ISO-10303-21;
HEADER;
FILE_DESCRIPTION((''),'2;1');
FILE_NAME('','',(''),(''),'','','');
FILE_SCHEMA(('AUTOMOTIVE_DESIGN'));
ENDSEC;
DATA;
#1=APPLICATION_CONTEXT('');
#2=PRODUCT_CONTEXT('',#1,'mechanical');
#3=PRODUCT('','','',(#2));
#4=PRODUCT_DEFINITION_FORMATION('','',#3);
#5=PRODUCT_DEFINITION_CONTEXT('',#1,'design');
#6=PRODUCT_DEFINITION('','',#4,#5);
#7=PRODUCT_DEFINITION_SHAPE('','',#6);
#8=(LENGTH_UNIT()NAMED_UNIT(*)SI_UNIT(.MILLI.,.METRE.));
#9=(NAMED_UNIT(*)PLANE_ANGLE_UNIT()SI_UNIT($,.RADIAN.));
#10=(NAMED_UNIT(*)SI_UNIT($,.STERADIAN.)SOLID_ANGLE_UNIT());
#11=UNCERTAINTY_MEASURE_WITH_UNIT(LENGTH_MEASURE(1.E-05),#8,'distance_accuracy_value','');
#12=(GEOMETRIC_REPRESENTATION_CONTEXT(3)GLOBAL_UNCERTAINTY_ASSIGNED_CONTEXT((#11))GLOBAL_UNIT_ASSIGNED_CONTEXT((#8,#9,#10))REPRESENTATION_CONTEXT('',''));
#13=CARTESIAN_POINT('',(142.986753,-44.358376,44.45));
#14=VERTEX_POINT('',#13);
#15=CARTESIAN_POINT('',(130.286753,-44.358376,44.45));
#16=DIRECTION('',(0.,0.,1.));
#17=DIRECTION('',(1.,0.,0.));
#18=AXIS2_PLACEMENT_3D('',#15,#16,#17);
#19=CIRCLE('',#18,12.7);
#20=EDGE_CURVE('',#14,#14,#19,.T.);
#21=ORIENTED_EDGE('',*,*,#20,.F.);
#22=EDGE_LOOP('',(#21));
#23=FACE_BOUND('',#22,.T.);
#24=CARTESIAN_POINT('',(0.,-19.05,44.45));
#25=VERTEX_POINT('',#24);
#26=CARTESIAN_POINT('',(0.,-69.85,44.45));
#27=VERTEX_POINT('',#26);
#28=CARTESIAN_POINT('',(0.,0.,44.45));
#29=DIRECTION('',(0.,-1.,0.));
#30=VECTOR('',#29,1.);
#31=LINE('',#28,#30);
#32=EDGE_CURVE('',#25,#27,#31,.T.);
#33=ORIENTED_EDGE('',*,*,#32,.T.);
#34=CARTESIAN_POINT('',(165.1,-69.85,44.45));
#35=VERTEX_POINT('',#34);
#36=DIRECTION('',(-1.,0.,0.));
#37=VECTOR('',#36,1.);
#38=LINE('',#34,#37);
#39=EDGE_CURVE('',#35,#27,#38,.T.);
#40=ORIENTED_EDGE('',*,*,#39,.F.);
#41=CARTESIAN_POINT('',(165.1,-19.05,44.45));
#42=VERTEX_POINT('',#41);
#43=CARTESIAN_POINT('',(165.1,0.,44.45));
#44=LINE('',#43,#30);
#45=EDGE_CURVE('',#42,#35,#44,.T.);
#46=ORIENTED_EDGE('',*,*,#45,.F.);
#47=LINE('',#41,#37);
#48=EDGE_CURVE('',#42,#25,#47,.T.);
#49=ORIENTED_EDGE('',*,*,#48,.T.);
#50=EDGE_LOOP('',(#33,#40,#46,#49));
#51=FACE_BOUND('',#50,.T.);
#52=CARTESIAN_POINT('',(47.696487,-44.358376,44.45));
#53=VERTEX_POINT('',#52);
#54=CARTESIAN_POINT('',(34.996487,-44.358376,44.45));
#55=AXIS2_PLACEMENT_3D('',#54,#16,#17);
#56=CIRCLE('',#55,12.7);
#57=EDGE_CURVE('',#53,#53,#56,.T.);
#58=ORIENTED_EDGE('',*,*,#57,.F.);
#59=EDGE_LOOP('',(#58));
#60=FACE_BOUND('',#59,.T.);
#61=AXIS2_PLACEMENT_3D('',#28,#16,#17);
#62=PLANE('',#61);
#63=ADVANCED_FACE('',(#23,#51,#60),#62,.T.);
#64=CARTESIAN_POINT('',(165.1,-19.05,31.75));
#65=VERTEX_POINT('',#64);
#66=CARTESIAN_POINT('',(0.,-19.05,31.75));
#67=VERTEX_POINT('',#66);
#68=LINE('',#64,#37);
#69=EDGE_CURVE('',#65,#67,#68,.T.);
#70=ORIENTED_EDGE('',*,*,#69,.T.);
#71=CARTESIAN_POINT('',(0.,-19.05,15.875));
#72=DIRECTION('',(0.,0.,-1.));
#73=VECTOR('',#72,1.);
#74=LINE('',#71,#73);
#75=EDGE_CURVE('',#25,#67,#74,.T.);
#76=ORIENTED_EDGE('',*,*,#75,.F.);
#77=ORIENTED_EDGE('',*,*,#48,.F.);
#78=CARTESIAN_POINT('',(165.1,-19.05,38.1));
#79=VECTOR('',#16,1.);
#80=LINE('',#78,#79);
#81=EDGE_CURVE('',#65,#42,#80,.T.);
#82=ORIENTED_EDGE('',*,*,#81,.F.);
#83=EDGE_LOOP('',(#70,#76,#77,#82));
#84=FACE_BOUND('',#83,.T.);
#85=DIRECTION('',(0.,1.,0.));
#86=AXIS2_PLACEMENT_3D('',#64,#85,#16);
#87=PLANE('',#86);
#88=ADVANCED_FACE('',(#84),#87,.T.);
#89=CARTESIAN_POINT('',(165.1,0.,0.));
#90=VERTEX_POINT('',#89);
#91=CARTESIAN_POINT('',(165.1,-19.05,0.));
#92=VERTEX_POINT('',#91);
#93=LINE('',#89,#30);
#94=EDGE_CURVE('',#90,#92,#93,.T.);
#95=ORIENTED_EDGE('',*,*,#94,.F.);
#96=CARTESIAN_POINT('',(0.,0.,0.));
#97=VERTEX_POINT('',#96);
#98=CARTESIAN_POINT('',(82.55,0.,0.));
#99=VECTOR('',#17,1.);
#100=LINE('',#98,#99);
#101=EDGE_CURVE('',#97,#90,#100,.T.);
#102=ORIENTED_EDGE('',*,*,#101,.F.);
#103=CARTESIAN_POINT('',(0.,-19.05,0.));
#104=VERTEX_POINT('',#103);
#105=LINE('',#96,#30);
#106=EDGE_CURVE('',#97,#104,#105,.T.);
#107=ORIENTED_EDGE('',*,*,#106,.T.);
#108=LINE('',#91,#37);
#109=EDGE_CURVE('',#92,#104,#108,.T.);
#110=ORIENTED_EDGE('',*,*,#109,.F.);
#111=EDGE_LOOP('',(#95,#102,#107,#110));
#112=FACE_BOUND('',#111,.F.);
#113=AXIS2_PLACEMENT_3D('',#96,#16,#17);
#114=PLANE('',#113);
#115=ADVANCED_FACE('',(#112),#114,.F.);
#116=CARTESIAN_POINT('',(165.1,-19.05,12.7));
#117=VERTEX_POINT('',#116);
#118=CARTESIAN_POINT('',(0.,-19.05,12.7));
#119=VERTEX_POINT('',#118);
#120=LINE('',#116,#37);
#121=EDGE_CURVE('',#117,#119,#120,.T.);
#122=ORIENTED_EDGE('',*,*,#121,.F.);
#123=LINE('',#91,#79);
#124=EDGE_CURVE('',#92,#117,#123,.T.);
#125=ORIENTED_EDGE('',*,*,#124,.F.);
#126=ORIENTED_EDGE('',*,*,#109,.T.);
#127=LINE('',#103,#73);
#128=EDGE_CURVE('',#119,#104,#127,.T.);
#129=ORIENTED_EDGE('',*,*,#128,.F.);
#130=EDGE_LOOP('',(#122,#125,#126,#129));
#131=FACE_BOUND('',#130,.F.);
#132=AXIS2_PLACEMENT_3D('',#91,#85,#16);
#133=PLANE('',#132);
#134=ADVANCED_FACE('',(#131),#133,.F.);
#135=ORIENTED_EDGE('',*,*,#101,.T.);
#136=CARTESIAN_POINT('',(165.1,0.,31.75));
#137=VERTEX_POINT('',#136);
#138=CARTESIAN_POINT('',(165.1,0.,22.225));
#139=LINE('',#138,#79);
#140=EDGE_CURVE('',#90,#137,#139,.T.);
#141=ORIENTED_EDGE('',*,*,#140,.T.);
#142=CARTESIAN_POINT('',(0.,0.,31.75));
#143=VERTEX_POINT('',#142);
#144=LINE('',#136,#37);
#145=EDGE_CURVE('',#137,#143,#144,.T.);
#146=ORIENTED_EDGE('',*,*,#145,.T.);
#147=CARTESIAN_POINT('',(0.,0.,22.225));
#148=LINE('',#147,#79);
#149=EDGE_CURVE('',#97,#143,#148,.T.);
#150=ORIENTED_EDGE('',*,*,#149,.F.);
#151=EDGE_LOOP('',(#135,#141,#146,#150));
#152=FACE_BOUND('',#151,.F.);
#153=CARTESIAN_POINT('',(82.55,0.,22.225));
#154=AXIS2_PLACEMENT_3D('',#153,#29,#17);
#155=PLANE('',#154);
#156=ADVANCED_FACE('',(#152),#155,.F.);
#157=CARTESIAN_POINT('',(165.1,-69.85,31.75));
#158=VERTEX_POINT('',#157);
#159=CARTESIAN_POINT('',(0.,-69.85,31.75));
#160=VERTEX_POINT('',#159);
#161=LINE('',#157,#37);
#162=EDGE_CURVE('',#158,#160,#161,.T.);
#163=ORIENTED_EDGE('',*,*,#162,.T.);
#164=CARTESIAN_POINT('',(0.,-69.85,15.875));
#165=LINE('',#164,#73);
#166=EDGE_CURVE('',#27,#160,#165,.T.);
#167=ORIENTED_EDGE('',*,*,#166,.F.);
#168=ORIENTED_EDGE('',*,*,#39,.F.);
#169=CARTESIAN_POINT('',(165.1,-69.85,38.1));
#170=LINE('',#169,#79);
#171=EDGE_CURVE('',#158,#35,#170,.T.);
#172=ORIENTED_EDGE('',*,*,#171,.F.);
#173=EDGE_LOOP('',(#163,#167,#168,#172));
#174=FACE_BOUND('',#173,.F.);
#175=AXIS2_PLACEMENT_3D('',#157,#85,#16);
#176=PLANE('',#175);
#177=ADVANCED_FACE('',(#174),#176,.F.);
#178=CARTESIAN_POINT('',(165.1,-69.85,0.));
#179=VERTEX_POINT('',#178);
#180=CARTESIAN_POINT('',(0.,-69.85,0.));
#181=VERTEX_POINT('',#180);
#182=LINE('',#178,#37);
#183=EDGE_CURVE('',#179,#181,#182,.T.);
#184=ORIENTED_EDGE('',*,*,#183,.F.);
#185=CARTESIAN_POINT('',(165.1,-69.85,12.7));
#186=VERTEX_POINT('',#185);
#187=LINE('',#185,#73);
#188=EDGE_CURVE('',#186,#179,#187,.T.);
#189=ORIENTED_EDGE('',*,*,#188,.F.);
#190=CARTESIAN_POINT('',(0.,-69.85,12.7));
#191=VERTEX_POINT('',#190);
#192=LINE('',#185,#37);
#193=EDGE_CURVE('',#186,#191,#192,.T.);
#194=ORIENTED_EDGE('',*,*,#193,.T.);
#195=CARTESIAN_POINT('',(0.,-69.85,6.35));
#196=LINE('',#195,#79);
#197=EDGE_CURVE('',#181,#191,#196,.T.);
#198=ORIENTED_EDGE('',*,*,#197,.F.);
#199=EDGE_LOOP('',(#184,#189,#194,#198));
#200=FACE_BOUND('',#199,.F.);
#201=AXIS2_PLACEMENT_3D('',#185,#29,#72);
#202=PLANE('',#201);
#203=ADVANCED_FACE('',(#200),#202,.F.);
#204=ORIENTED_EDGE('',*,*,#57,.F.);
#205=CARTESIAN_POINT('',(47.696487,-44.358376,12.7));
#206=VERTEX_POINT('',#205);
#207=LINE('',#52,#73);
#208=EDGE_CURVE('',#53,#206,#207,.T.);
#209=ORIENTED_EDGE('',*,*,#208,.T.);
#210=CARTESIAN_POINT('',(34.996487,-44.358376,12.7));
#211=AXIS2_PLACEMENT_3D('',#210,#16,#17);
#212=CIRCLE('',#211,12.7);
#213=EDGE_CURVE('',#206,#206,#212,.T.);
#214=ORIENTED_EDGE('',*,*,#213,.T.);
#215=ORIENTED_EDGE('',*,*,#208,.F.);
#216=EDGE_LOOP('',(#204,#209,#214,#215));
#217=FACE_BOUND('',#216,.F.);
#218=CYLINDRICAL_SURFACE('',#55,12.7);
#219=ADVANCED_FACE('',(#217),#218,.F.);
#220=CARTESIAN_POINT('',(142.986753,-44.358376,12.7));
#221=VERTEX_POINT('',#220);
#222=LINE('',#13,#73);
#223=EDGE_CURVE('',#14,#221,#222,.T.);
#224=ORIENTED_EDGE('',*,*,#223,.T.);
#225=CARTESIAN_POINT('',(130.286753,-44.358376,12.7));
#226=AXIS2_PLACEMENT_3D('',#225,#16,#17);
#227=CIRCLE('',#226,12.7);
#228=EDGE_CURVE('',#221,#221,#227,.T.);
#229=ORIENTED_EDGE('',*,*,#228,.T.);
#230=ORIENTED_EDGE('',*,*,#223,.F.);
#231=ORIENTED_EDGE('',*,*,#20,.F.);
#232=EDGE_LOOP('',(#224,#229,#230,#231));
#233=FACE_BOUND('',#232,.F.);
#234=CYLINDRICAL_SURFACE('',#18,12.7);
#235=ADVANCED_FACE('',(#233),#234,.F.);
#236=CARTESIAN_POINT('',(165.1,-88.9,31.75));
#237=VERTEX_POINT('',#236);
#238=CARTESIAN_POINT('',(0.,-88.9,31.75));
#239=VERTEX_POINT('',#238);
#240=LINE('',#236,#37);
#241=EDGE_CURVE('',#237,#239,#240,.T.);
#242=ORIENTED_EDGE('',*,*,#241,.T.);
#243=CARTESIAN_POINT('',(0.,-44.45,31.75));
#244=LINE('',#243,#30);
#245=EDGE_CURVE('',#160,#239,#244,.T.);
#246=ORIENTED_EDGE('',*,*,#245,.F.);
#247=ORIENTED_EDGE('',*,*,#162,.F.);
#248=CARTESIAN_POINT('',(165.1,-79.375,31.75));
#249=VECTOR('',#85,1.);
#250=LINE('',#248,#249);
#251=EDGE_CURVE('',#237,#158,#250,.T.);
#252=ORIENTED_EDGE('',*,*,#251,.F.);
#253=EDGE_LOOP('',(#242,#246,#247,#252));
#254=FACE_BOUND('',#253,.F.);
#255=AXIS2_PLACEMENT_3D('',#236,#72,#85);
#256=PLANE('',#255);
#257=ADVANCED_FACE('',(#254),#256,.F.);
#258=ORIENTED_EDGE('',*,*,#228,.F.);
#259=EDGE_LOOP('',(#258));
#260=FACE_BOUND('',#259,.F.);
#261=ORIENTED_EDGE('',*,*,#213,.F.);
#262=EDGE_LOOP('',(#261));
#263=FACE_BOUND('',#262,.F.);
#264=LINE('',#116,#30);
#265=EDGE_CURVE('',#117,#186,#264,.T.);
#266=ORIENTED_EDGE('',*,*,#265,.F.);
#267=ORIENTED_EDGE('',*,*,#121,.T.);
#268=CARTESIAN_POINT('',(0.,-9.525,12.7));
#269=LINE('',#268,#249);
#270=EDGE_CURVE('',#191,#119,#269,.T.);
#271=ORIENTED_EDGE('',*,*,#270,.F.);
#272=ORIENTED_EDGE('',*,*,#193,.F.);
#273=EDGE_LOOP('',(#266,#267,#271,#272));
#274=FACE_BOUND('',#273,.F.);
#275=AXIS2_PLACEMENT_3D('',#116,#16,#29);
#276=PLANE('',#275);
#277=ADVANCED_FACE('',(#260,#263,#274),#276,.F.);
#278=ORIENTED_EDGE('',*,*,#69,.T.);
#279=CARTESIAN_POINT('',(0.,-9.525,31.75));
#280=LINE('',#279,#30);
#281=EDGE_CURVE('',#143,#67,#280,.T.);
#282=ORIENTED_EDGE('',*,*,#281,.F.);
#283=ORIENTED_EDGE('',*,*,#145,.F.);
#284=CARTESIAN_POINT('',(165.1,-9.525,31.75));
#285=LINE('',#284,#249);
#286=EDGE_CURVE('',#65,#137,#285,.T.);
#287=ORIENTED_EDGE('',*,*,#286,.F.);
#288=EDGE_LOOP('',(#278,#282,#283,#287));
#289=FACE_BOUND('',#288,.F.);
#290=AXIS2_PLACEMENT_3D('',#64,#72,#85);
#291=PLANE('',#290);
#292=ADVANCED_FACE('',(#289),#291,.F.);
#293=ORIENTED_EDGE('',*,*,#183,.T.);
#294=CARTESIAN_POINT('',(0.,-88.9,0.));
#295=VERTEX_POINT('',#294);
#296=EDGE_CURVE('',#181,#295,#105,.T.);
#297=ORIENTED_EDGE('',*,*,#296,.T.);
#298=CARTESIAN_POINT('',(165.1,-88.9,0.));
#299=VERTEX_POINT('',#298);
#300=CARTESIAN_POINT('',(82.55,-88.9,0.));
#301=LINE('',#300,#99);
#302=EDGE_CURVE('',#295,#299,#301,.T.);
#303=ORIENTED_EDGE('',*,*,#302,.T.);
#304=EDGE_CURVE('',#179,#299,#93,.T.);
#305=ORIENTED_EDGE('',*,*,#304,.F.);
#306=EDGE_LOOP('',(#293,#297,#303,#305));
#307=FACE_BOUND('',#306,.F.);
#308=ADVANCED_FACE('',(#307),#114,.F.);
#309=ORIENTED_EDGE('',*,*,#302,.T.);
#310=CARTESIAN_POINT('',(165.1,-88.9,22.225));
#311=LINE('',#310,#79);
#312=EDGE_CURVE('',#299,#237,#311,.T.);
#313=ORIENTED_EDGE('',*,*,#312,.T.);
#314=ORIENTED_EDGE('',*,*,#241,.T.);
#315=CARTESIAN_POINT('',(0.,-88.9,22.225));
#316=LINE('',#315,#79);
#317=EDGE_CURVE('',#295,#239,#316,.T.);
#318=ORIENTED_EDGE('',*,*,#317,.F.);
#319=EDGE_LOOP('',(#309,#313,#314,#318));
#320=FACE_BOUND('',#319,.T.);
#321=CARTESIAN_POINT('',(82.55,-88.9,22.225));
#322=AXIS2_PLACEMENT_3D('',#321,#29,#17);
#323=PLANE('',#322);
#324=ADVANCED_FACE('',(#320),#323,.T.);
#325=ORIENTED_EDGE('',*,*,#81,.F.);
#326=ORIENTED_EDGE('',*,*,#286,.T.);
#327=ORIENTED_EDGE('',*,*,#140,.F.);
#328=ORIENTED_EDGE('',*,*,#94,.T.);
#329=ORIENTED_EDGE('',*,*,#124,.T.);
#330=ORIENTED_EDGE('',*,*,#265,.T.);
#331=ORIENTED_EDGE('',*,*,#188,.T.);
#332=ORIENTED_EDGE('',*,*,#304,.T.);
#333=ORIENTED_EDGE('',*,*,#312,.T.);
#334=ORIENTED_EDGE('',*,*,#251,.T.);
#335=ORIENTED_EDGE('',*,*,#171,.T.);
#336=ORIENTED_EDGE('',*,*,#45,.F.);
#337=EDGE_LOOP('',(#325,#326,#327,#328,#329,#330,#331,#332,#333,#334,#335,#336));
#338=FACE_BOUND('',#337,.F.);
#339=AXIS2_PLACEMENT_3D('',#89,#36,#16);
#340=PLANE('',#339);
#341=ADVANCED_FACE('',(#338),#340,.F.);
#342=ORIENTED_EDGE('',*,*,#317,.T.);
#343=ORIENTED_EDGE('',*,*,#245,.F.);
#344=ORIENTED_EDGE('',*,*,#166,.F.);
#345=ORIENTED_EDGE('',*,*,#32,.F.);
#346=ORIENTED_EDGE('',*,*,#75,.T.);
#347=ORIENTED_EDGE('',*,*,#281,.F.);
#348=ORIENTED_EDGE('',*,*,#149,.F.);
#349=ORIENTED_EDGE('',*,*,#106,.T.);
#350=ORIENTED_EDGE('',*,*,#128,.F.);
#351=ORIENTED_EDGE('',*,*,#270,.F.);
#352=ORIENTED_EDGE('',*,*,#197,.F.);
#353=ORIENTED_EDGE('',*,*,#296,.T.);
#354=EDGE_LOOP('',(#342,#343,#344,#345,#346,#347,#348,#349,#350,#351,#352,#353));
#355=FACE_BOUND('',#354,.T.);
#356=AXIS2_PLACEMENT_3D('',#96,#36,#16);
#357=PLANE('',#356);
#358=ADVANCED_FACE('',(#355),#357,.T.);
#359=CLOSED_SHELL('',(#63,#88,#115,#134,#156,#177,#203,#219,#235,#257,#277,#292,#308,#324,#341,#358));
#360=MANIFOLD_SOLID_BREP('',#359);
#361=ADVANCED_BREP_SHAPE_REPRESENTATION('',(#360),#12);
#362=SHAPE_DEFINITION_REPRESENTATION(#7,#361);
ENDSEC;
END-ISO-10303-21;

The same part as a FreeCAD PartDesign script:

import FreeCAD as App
import Part
import Sketcher
Q = App.Units.Quantity

doc = App.newDocument("Part")
body = doc.addObject("PartDesign::Body", "Body")

# Sketch on XZ plane
sketch1 = body.newObject("Sketcher::SketchObject", "Sketch")
sketch1.AttachmentSupport = (doc.getObject("XZ_Plane"), [""])
sketch1.MapMode = "FlatFace"
sketch1.addGeometry([
    Part.LineSegment(App.Vector(0, 44, 0), App.Vector(0, 0, 0)),
    Part.LineSegment(App.Vector(0, 0, 0), App.Vector(165, 0, 0)),
    Part.LineSegment(App.Vector(165, 0, 0), App.Vector(165, 44, 0)),
    Part.LineSegment(App.Vector(165, 44, 0), App.Vector(0, 44, 0)),
], False)
sketch1.addConstraint([
    Sketcher.Constraint("Coincident", 0, 2, 1, 1),
    Sketcher.Constraint("Coincident", 1, 2, 2, 1),
    Sketcher.Constraint("Coincident", 2, 2, 3, 1),
    Sketcher.Constraint("Coincident", 3, 2, 0, 1),
    Sketcher.Constraint("Vertical", 0),
    Sketcher.Constraint("Horizontal", 1),
    Sketcher.Constraint("Vertical", 2),
    Sketcher.Constraint("Horizontal", 3),
    Sketcher.Constraint("Coincident", 0, 2, -1, 1),
    Sketcher.Constraint("DistanceX", 1, 1, 1, 2, Q("6.5 in")),
    Sketcher.Constraint("DistanceY", 0, 2, 0, 1, Q("1.75 in")),
])
pad1 = body.newObject("PartDesign::Pad", "Pad")
pad1.Profile = sketch1
pad1.Length = Q("3.5 in")

# Sketch on YZ plane
sketch2 = body.newObject("Sketcher::SketchObject", "Sketch001")
sketch2.AttachmentSupport = (doc.getObject("YZ_Plane"), [""])
sketch2.MapMode = "FlatFace"
sketch2.AttachmentOffset = App.Placement(App.Vector(0, 0, 6.5 * 25.4), App.Rotation())
sketch2.addGeometry([
    Part.LineSegment(App.Vector(-89, 44, 0), App.Vector(-89, 32, 0)),
    Part.LineSegment(App.Vector(-89, 32, 0), App.Vector(-70, 32, 0)),
    Part.LineSegment(App.Vector(-70, 32, 0), App.Vector(-70, 44, 0)),
    Part.LineSegment(App.Vector(-70, 44, 0), App.Vector(-89, 44, 0)),
], False)
sketch2.addConstraint([
    Sketcher.Constraint("Coincident", 0, 2, 1, 1),
    Sketcher.Constraint("Coincident", 1, 2, 2, 1),
    Sketcher.Constraint("Coincident", 2, 2, 3, 1),
    Sketcher.Constraint("Coincident", 3, 2, 0, 1),
    Sketcher.Constraint("Vertical", 0),
    Sketcher.Constraint("Horizontal", 1),
    Sketcher.Constraint("Vertical", 2),
    Sketcher.Constraint("Horizontal", 3),
    Sketcher.Constraint("DistanceY", 0, 2, 0, 1, Q("0.5 in")),
    Sketcher.Constraint("DistanceX", 1, 1, 1, 2, Q("0.75 in")),
    Sketcher.Constraint("DistanceX", 0, 2, -1, 1, Q("3.5 in")),
    Sketcher.Constraint("DistanceY", -1, 1, 0, 2, Q("1.25 in")),
])
pocket1 = body.newObject("PartDesign::Pocket", "Pocket")
pocket1.Profile = sketch2
pocket1.Type = "ThroughAll"

# Sketch on YZ plane
sketch3 = body.newObject("Sketcher::SketchObject", "Sketch002")
sketch3.AttachmentSupport = (doc.getObject("YZ_Plane"), [""])
sketch3.MapMode = "FlatFace"
sketch3.AttachmentOffset = App.Placement(App.Vector(0, 0, 6.5 * 25.4), App.Rotation())
sketch3.addGeometry([
    Part.LineSegment(App.Vector(-19, 44, 0), App.Vector(-19, 32, 0)),
    Part.LineSegment(App.Vector(-19, 32, 0), App.Vector(0, 32, 0)),
    Part.LineSegment(App.Vector(0, 32, 0), App.Vector(0, 44, 0)),
    Part.LineSegment(App.Vector(0, 44, 0), App.Vector(-19, 44, 0)),
], False)
sketch3.addConstraint([
    Sketcher.Constraint("Coincident", 0, 2, 1, 1),
    Sketcher.Constraint("Coincident", 1, 2, 2, 1),
    Sketcher.Constraint("Coincident", 2, 2, 3, 1),
    Sketcher.Constraint("Coincident", 3, 2, 0, 1),
    Sketcher.Constraint("Vertical", 0),
    Sketcher.Constraint("Horizontal", 1),
    Sketcher.Constraint("Vertical", 2),
    Sketcher.Constraint("Horizontal", 3),
    Sketcher.Constraint("PointOnObject", 1, 2, -2),
    Sketcher.Constraint("DistanceY", 0, 2, 0, 1, Q("0.5 in")),
    Sketcher.Constraint("DistanceX", 1, 1, 1, 2, Q("0.75 in")),
    Sketcher.Constraint("DistanceY", -1, 1, 0, 2, Q("1.25 in")),
])
pocket2 = body.newObject("PartDesign::Pocket", "Pocket001")
pocket2.Profile = sketch3
pocket2.Type = "ThroughAll"

# Sketch on YZ plane
sketch4 = body.newObject("Sketcher::SketchObject", "Sketch003")
sketch4.AttachmentSupport = (doc.getObject("YZ_Plane"), [""])
sketch4.MapMode = "FlatFace"
sketch4.AttachmentOffset = App.Placement(App.Vector(0, 0, 6.5 * 25.4), App.Rotation())
sketch4.addGeometry([
    Part.LineSegment(App.Vector(-70, 0, 0), App.Vector(-19, 0, 0)),
    Part.LineSegment(App.Vector(-19, 0, 0), App.Vector(-19, 13, 0)),
    Part.LineSegment(App.Vector(-19, 13, 0), App.Vector(-70, 13, 0)),
    Part.LineSegment(App.Vector(-70, 13, 0), App.Vector(-70, 0, 0)),
], False)
sketch4.addConstraint([
    Sketcher.Constraint("Coincident", 0, 2, 1, 1),
    Sketcher.Constraint("Coincident", 1, 2, 2, 1),
    Sketcher.Constraint("Coincident", 2, 2, 3, 1),
    Sketcher.Constraint("Coincident", 3, 2, 0, 1),
    Sketcher.Constraint("Horizontal", 0),
    Sketcher.Constraint("Vertical", 1),
    Sketcher.Constraint("Horizontal", 2),
    Sketcher.Constraint("Vertical", 3),
    Sketcher.Constraint("PointOnObject", 0, 2, -1),
    Sketcher.Constraint("DistanceX", 0, 1, 0, 2, Q("2 in")),
    Sketcher.Constraint("DistanceY", 1, 1, 1, 2, Q("0.5 in")),
    Sketcher.Constraint("DistanceX", 0, 2, -1, 1, Q("0.75 in")),
])
pocket3 = body.newObject("PartDesign::Pocket", "Pocket002")
pocket3.Profile = sketch4
pocket3.Type = "ThroughAll"

# Sketch on XY plane
sketch5 = body.newObject("Sketcher::SketchObject", "Sketch004")
sketch5.AttachmentSupport = (doc.getObject("XY_Plane"), [""])
sketch5.MapMode = "FlatFace"
sketch5.AttachmentOffset = App.Placement(App.Vector(0, 0, 1.75 * 25.4), App.Rotation())
sketch5.addGeometry([
    Part.Circle(App.Vector(35, -44, 0), App.Vector(0, 0, 1), 13),
    Part.Circle(App.Vector(130, -44, 0), App.Vector(0, 0, 1), 13),
], False)
sketch5.addConstraint([
    Sketcher.Constraint("Equal", 0, 1),
    Sketcher.Constraint("Horizontal", 0, 3, 1, 3),
    Sketcher.Constraint("Diameter", 0, Q("1 in")),
    Sketcher.Constraint("DistanceX", -1, 1, 0, 3, 34.996487),
    Sketcher.Constraint("DistanceY", 0, 3, -1, 1, 44.358376),
    Sketcher.Constraint("DistanceX", -1, 1, 1, 3, 130.286753),
])
pocket4 = body.newObject("PartDesign::Pocket", "Pocket003")
pocket4.Profile = sketch5
pocket4.Type = "ThroughAll"

doc.recompute()
